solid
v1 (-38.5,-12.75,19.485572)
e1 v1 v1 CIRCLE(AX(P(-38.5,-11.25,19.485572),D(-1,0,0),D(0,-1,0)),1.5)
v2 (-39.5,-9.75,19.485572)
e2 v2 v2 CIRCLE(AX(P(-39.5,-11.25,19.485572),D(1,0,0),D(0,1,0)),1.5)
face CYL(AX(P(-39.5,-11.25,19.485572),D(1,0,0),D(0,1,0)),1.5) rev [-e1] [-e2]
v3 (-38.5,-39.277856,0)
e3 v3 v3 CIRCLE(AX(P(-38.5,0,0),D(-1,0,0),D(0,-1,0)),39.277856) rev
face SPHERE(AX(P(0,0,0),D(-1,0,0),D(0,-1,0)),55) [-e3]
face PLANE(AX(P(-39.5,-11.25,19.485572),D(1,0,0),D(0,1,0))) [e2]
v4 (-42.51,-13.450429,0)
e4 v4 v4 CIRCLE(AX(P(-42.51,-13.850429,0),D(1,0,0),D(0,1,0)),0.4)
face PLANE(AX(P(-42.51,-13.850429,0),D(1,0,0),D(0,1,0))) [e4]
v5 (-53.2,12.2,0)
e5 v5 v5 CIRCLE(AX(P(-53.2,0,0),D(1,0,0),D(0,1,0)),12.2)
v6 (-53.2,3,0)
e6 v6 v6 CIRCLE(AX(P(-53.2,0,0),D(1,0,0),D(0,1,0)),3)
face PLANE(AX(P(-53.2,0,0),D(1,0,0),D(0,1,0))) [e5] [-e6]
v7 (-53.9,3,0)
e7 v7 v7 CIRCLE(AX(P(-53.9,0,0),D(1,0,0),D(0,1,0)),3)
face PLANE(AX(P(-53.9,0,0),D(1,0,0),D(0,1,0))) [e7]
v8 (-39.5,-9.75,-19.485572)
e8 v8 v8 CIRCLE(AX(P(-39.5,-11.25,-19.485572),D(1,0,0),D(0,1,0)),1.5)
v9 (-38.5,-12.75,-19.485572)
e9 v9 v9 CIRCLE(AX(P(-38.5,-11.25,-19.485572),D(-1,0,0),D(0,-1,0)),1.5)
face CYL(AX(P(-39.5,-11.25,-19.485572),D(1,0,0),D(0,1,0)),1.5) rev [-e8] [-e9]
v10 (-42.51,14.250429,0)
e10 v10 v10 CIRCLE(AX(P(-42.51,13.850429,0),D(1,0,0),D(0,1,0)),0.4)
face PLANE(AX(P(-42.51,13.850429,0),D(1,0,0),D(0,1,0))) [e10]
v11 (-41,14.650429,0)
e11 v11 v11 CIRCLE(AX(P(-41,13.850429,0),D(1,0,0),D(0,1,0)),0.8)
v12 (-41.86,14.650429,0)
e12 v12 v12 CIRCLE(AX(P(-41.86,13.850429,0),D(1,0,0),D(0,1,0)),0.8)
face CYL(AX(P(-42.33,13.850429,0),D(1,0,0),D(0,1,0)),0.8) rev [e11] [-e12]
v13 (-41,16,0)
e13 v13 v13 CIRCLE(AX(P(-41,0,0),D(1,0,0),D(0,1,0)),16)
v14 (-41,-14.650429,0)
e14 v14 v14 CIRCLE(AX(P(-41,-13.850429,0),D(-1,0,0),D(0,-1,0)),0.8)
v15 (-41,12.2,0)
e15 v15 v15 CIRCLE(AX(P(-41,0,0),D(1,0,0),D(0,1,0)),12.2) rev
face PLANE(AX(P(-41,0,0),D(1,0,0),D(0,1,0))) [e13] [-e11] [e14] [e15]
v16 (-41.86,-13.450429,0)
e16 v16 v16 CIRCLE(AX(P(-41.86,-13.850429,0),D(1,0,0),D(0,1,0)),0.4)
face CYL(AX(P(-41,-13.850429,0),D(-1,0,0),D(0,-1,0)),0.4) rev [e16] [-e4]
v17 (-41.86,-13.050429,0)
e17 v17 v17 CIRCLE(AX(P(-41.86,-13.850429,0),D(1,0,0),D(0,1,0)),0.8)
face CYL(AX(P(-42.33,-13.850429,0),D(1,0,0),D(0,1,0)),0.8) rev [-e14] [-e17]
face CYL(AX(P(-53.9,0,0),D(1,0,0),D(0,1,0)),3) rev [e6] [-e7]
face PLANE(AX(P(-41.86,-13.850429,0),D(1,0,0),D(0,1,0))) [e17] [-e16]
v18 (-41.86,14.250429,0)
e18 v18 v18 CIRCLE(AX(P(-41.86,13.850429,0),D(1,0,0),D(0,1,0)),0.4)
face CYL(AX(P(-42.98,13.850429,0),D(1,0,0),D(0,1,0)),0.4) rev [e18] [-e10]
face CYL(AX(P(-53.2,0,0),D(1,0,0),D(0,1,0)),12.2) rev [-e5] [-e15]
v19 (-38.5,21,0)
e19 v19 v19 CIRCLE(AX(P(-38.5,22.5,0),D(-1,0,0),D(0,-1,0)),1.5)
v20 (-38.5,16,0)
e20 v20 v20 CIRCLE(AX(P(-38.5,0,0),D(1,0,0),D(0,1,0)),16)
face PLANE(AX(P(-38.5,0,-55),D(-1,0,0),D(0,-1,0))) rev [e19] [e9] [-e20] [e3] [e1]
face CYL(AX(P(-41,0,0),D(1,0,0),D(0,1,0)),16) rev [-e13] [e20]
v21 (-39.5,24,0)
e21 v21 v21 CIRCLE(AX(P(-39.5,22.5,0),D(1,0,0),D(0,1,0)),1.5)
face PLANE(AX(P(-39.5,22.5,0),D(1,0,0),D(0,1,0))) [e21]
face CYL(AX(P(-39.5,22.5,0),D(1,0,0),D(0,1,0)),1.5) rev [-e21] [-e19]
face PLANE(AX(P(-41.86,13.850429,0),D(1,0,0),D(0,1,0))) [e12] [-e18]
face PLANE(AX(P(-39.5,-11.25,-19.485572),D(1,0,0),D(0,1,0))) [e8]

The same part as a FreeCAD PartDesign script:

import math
import FreeCAD as App
import Part
import Sketcher

V = App.Vector

doc = App.newDocument("Part")
params = doc.addObject("Spreadsheet::Sheet", "Params")
for row, (alias, value) in enumerate([
    ("sketch1_radius", "55 mm"),
    ("revolution_angle", "360 deg"),
    ("sketch3_diameter", "24.4 mm"),
    ("pocket2_length", "14.7 mm"),
    ("sketch4_diameter", "6 mm"),
    ("pocket3_length", "0.7 mm"),
    ("sketch5_diameter", "3 mm"),
    ("pad1_length", "1 mm"),
    ("sketch6_diameter", "3 mm"),
    ("pocket4_length", "2 mm"),
    ("sketch7_diameter", "32 mm"),
    ("pocket5_length", "2.5 mm"),
    ("pocket6_length", "1.33 mm"),
    ("sketch9_diameter", "1.6 mm"),
    ("pocket7_length", "1.98 mm"),
    ("sketch10_diameter", "1.6 mm"),
    ("pad2_length", "1.98 mm"),
    ("pad3_length", "1.33 mm"),
    ("sketch12_diameter", "1.6 mm"),
    ("pad4_length", "1.98 mm"),
    ("pad5_length", "1.33 mm"),
    ("sketch14_diameter", "0.8 mm"),
    ("pocket8_length", "1.98 mm"),
    ("sketch15_diameter", "0.8 mm"),
    ("pocket9_length", "1.98 mm"),
    ("sketch16_diameter", "1.6 mm"),
    ("pocket10_length", "1.33 mm"),
    ("sketch17_diameter", "0.8 mm"),
    ("pad6_length", "0.47 mm"),
    ("sketch18_diameter", "1.6 mm"),
    ("sketch18_diameter2", "0.8 mm"),
    ("pad7_length", "0.47 mm"),
], start=1):
    params.set(f"A{row}", alias)
    params.set(f"B{row}", "=" + value)
    params.setAlias(f"B{row}", alias)

body = doc.addObject("PartDesign::Body", "Body")

# Sketch on XY plane
sketch1 = doc.addObject("Sketcher::SketchObject", "Sketch")
body.addObject(sketch1)
sketch1.AttachmentSupport = (doc.XY_Plane, [""])
sketch1.MapMode = "FlatFace"
sketch1.addGeometry([
    Part.LineSegment(V(0, -55, 0), V(0, 55, 0)),
    Part.ArcOfCircle(Part.Circle(V(0, 0, 0), V(0, 0, 1), 55), math.radians(90), math.radians(270)),
], False)
sketch1.addConstraint([
    Sketcher.Constraint("Coincident", 0, 1, 1, 2),
    Sketcher.Constraint("Coincident", 1, 1, 0, 2),
    Sketcher.Constraint("Vertical", 0),
    Sketcher.Constraint("Coincident", 1, 3, -1, 1),
    Sketcher.Constraint("PointOnObject", 0, 1, -2),
    Sketcher.Constraint("Radius", 1, 55.0),
])
sketch1.setExpression("Constraints[5]", "Params.sketch1_radius")
revolution = doc.addObject("PartDesign::Revolution", "Revolution")
body.addObject(revolution)
revolution.Profile = sketch1
revolution.ReferenceAxis = (sketch1, ["V_Axis"])
revolution.setExpression("Angle", "Params.revolution_angle")

# Sketch on XY plane
sketch2 = doc.addObject("Sketcher::SketchObject", "Sketch001")
body.addObject(sketch2)
sketch2.AttachmentSupport = (doc.XY_Plane, [""])
sketch2.MapMode = "FlatFace"
sketch2.addGeometry([
    Part.LineSegment(V(-38, 55, 0), V(-38, -64, 0)),
    Part.LineSegment(V(-38, -64, 0), V(58, -64, 0)),
    Part.LineSegment(V(58, -64, 0), V(58, 55, 0)),
    Part.LineSegment(V(58, 55, 0), V(-38, 55, 0)),
], False)
sketch2.addConstraint([
    Sketcher.Constraint("Coincident", 0, 2, 1, 1),
    Sketcher.Constraint("Coincident", 1, 2, 2, 1),
    Sketcher.Constraint("Coincident", 2, 2, 3, 1),
    Sketcher.Constraint("Coincident", 3, 2, 0, 1),
    Sketcher.Constraint("Vertical", 0),
    Sketcher.Constraint("Horizontal", 1),
    Sketcher.Constraint("Vertical", 2),
    Sketcher.Constraint("Horizontal", 3),
    Sketcher.Constraint("DistanceY", -1, 1, 2, 2, 55.0),
    Sketcher.Constraint("DistanceX", 0, 2, -1, 1, 38.5),
    Sketcher.Constraint("DistanceY", 0, 2, 0, 1, 118.890241),
    Sketcher.Constraint("DistanceX", 1, 1, 1, 2, 96.244438),
])
pocket1 = doc.addObject("PartDesign::Pocket", "Pocket")
body.addObject(pocket1)
pocket1.Profile = sketch2
pocket1.Type = "ThroughAll"
pocket1.Midplane = True

# Sketch on YZ plane
sketch3 = doc.addObject("Sketcher::SketchObject", "Sketch002")
body.addObject(sketch3)
sketch3.AttachmentSupport = (doc.YZ_Plane, [""])
sketch3.MapMode = "FlatFace"
sketch3.AttachmentOffset = App.Placement(V(0, 0, -38.5), App.Rotation())
sketch3.addGeometry(Part.Circle(V(0, 0, 0), V(0, 0, 1), 12), False)
sketch3.addConstraint([
    Sketcher.Constraint("Coincident", 0, 3, -1, 1),
    Sketcher.Constraint("Diameter", 0, 24.4),
])
sketch3.setExpression("Constraints[1]", "Params.sketch3_diameter")
pocket2 = doc.addObject("PartDesign::Pocket", "Pocket001")
body.addObject(pocket2)
pocket2.Profile = sketch3
pocket2.setExpression("Length", "Params.pocket2_length")

# Sketch on YZ plane
sketch4 = doc.addObject("Sketcher::SketchObject", "Sketch003")
body.addObject(sketch4)
sketch4.AttachmentSupport = (doc.YZ_Plane, [""])
sketch4.MapMode = "FlatFace"
sketch4.AttachmentOffset = App.Placement(V(0, 0, -53.2), App.Rotation())
sketch4.addGeometry(Part.Circle(V(0, 0, 0), V(0, 0, 1), 3), False)
sketch4.addConstraint([
    Sketcher.Constraint("Coincident", 0, 3, -1, 1),
    Sketcher.Constraint("Diameter", 0, 6.0),
])
sketch4.setExpression("Constraints[1]", "Params.sketch4_diameter")
pocket3 = doc.addObject("PartDesign::Pocket", "Pocket002")
body.addObject(pocket3)
pocket3.Profile = sketch4
pocket3.setExpression("Length", "Params.pocket3_length")

# Sketch on YZ plane
sketch5 = doc.addObject("Sketcher::SketchObject", "Sketch004")
body.addObject(sketch5)
sketch5.AttachmentSupport = (doc.YZ_Plane, [""])
sketch5.MapMode = "FlatFace"
sketch5.AttachmentOffset = App.Placement(V(0, 0, -38.5), App.Rotation())
sketch5.addGeometry([
    Part.Circle(V(22.5, 0, 0), V(0, 0, 1), 1.5),
    Part.Circle(V(-11.2, -19.5, 0), V(0, 0, 1), 1.5),
    Part.Circle(V(-11.2, 19.5, 0), V(0, 0, 1), 1.5),
], False)
sketch5.addConstraint([
    Sketcher.Constraint("Equal", 0, 1),
    Sketcher.Constraint("Equal", 1, 2),
    Sketcher.Constraint("Symmetric", 1, 3, 2, 3, -1),
    Sketcher.Constraint("PointOnObject", 0, 3, -1),
    Sketcher.Constraint("Diameter", 0, 3.0),
    Sketcher.Constraint("DistanceX", -1, 1, 0, 3, 22.5),
    Sketcher.Constraint("DistanceX", 1, 3, -1, 1, 11.25),
    Sketcher.Constraint("DistanceY", 1, 3, -1, 1, 19.485572),
])
sketch5.setExpression("Constraints[4]", "Params.sketch5_diameter")
pad1 = doc.addObject("PartDesign::Pad", "Pad")
body.addObject(pad1)
pad1.Profile = sketch5
pad1.setExpression("Length", "Params.pad1_length")

# Sketch on YZ plane
sketch6 = doc.addObject("Sketcher::SketchObject", "Sketch005")
body.addObject(sketch6)
sketch6.AttachmentSupport = (doc.YZ_Plane, [""])
sketch6.MapMode = "FlatFace"
sketch6.AttachmentOffset = App.Placement(V(0, 0, -39.5), App.Rotation())
sketch6.addGeometry([
    Part.Circle(V(22.5, 0, 0), V(0, 0, 1), 1.5),
    Part.Circle(V(-11.2, 19.5, 0), V(0, 0, 1), 1.5),
    Part.Circle(V(-11.2, -19.5, 0), V(0, 0, 1), 1.5),
], False)
sketch6.addConstraint([
    Sketcher.Constraint("Equal", 0, 1),
    Sketcher.Constraint("Equal", 1, 2),
    Sketcher.Constraint("Symmetric", 1, 3, 2, 3, -1),
    Sketcher.Constraint("PointOnObject", 0, 3, -1),
    Sketcher.Constraint("Diameter", 0, 3.0),
    Sketcher.Constraint("DistanceX", -1, 1, 0, 3, 22.5),
    Sketcher.Constraint("DistanceX", 1, 3, -1, 1, 11.25),
    Sketcher.Constraint("DistanceY", -1, 1, 1, 3, 19.485572),
])
sketch6.setExpression("Constraints[4]", "Params.sketch6_diameter")
pocket4 = doc.addObject("PartDesign::Pocket", "Pocket003")
body.addObject(pocket4)
pocket4.Profile = sketch6
pocket4.setExpression("Length", "Params.pocket4_length")
pocket4.Reversed = True

# Sketch on YZ plane
sketch7 = doc.addObject("Sketcher::SketchObject", "Sketch006")
body.addObject(sketch7)
sketch7.AttachmentSupport = (doc.YZ_Plane, [""])
sketch7.MapMode = "FlatFace"
sketch7.AttachmentOffset = App.Placement(V(0, 0, -38.5), App.Rotation())
sketch7.addGeometry(Part.Circle(V(0, 0, 0), V(0, 0, 1), 16), False)
sketch7.addConstraint([
    Sketcher.Constraint("Coincident", 0, 3, -1, 1),
    Sketcher.Constraint("Diameter", 0, 32.0),
])
sketch7.setExpression("Constraints[1]", "Params.sketch7_diameter")
pocket5 = doc.addObject("PartDesign::Pocket", "Pocket004")
body.addObject(pocket5)
pocket5.Profile = sketch7
pocket5.setExpression("Length", "Params.pocket5_length")

# Sketch on YZ plane
sketch8 = doc.addObject("Sketcher::SketchObject", "Sketch007")
body.addObject(sketch8)
sketch8.AttachmentSupport = (doc.YZ_Plane, [""])
sketch8.MapMode = "FlatFace"
sketch8.AttachmentOffset = App.Placement(V(0, 0, -41), App.Rotation())
sketch8.addGeometry([
    Part.Circle(V(14, 0, 0), V(0, 0, 1), 1.6),
    Part.Circle(V(-14, 0, 0), V(0, 0, 1), 1.6),
], False)
sketch8.addConstraint([
    Sketcher.Constraint("Equal", 0, 1),
    Sketcher.Constraint("Symmetric", 0, 3, 1, 3, -1, 1),
    Sketcher.Constraint("PointOnObject", 0, 3, -1),
    Sketcher.Constraint("Diameter", 0, 3.196469),
    Sketcher.Constraint("DistanceX", -1, 1, 0, 3, 14.008048),
])
pocket6 = doc.addObject("PartDesign::Pocket", "Pocket005")
body.addObject(pocket6)
pocket6.Profile = sketch8
pocket6.setExpression("Length", "Params.pocket6_length")

# Sketch on YZ plane
sketch9 = doc.addObject("Sketcher::SketchObject", "Sketch008")
body.addObject(sketch9)
sketch9.AttachmentSupport = (doc.YZ_Plane, [""])
sketch9.MapMode = "FlatFace"
sketch9.AttachmentOffset = App.Placement(V(0, 0, -41), App.Rotation())
sketch9.addGeometry([
    Part.Circle(V(14, 0, 0), V(0, 0, 1), 0.8),
    Part.Circle(V(-14, 0, 0), V(0, 0, 1), 0.8),
], False)
sketch9.addConstraint([
    Sketcher.Constraint("Equal", 0, 1),
    Sketcher.Constraint("Symmetric", 0, 3, 1, 3, -1, 1),
    Sketcher.Constraint("PointOnObject", 0, 3, -1),
    Sketcher.Constraint("Diameter", 0, 1.6),
    Sketcher.Constraint("DistanceX", -1, 1, 0, 3, 14.008048),
])
sketch9.setExpression("Constraints[3]", "Params.sketch9_diameter")
pocket7 = doc.addObject("PartDesign::Pocket", "Pocket006")
body.addObject(pocket7)
pocket7.Profile = sketch9
pocket7.setExpression("Length", "Params.pocket7_length")

# Sketch on YZ plane
sketch10 = doc.addObject("Sketcher::SketchObject", "Sketch009")
body.addObject(sketch10)
sketch10.AttachmentSupport = (doc.YZ_Plane, [""])
sketch10.MapMode = "FlatFace"
sketch10.AttachmentOffset = App.Placement(V(0, 0, -41), App.Rotation())
sketch10.addGeometry(Part.Circle(V(14, 0, 0), V(0, 0, 1), 0.8), False)
sketch10.addConstraint([
    Sketcher.Constraint("PointOnObject", 0, 3, -1),
    Sketcher.Constraint("Diameter", 0, 1.6),
    Sketcher.Constraint("DistanceX", -1, 1, 0, 3, 14.008048),
])
sketch10.setExpression("Constraints[1]", "Params.sketch10_diameter")
pad2 = doc.addObject("PartDesign::Pad", "Pad001")
body.addObject(pad2)
pad2.Profile = sketch10
pad2.setExpression("Length", "Params.pad2_length")
pad2.Reversed = True

# Sketch on YZ plane
sketch11 = doc.addObject("Sketcher::SketchObject", "Sketch010")
body.addObject(sketch11)
sketch11.AttachmentSupport = (doc.YZ_Plane, [""])
sketch11.MapMode = "FlatFace"
sketch11.AttachmentOffset = App.Placement(V(0, 0, -41), App.Rotation())
sketch11.addGeometry(Part.Circle(V(14, 0, 0), V(0, 0, 1), 1.6), False)
sketch11.addConstraint([
    Sketcher.Constraint("PointOnObject", 0, 3, -1),
    Sketcher.Constraint("Diameter", 0, 3.196469),
    Sketcher.Constraint("DistanceX", -1, 1, 0, 3, 14.008048),
])
pad3 = doc.addObject("PartDesign::Pad", "Pad002")
body.addObject(pad3)
pad3.Profile = sketch11
pad3.setExpression("Length", "Params.pad3_length")
pad3.Reversed = True

# Sketch on YZ plane
sketch12 = doc.addObject("Sketcher::SketchObject", "Sketch011")
body.addObject(sketch12)
sketch12.AttachmentSupport = (doc.YZ_Plane, [""])
sketch12.MapMode = "FlatFace"
sketch12.AttachmentOffset = App.Placement(V(0, 0, -41), App.Rotation())
sketch12.addGeometry(Part.Circle(V(-14, 0, 0), V(0, 0, 1), 0.8), False)
sketch12.addConstraint([
    Sketcher.Constraint("PointOnObject", 0, 3, -1),
    Sketcher.Constraint("Diameter", 0, 1.6),
    Sketcher.Constraint("DistanceX", 0, 3, -1, 1, 14.008048),
])
sketch12.setExpression("Constraints[1]", "Params.sketch12_diameter")
pad4 = doc.addObject("PartDesign::Pad", "Pad003")
body.addObject(pad4)
pad4.Profile = sketch12
pad4.setExpression("Length", "Params.pad4_length")
pad4.Reversed = True

# Sketch on YZ plane
sketch13 = doc.addObject("Sketcher::SketchObject", "Sketch012")
body.addObject(sketch13)
sketch13.AttachmentSupport = (doc.YZ_Plane, [""])
sketch13.MapMode = "FlatFace"
sketch13.AttachmentOffset = App.Placement(V(0, 0, -41), App.Rotation())
sketch13.addGeometry(Part.Circle(V(-14, 0, 0), V(0, 0, 1), 1.6), False)
sketch13.addConstraint([
    Sketcher.Constraint("PointOnObject", 0, 3, -1),
    Sketcher.Constraint("Diameter", 0, 3.196469),
    Sketcher.Constraint("DistanceX", 0, 3, -1, 1, 14.008048),
])
pad5 = doc.addObject("PartDesign::Pad", "Pad004")
body.addObject(pad5)
pad5.Profile = sketch13
pad5.setExpression("Length", "Params.pad5_length")
pad5.Reversed = True

# Sketch on YZ plane
sketch14 = doc.addObject("Sketcher::SketchObject", "Sketch013")
body.addObject(sketch14)
sketch14.AttachmentSupport = (doc.YZ_Plane, [""])
sketch14.MapMode = "FlatFace"
sketch14.AttachmentOffset = App.Placement(V(0, 0, -41), App.Rotation())
sketch14.addGeometry(Part.Circle(V(13.85, 0, 0), V(0, 0, 1), 0.4), False)
sketch14.addConstraint([
    Sketcher.Constraint("PointOnObject", 0, 3, -1),
    Sketcher.Constraint("Diameter", 0, 0.8),
    Sketcher.Constraint("DistanceX", -1, 1, 0, 3, 13.850429),
])
sketch14.setExpression("Constraints[1]", "Params.sketch14_diameter")
pocket8 = doc.addObject("PartDesign::Pocket", "Pocket007")
body.addObject(pocket8)
pocket8.Profile = sketch14
pocket8.setExpression("Length", "Params.pocket8_length")

# Sketch on YZ plane
sketch15 = doc.addObject("Sketcher::SketchObject", "Sketch014")
body.addObject(sketch15)
sketch15.AttachmentSupport = (doc.YZ_Plane, [""])
sketch15.MapMode = "FlatFace"
sketch15.AttachmentOffset = App.Placement(V(0, 0, -41), App.Rotation())
sketch15.addGeometry([
    Part.Circle(V(13.85, 0, 0), V(0, 0, 1), 0.4),
    Part.Circle(V(-13.85, 0, 0), V(0, 0, 1), 0.4),
], False)
sketch15.addConstraint([
    Sketcher.Constraint("Equal", 0, 1),
    Sketcher.Constraint("Symmetric", 0, 3, 1, 3, -1, 1),
    Sketcher.Constraint("PointOnObject", 0, 3, -1),
    Sketcher.Constraint("Diameter", 0, 0.8),
    Sketcher.Constraint("DistanceX", -1, 1, 0, 3, 13.850429),
])
sketch15.setExpression("Constraints[3]", "Params.sketch15_diameter")
pocket9 = doc.addObject("PartDesign::Pocket", "Pocket008")
body.addObject(pocket9)
pocket9.Profile = sketch15
pocket9.setExpression("Length", "Params.pocket9_length")

# Sketch on YZ plane
sketch16 = doc.addObject("Sketcher::SketchObject", "Sketch015")
body.addObject(sketch16)
sketch16.AttachmentSupport = (doc.YZ_Plane, [""])
sketch16.MapMode = "FlatFace"
sketch16.AttachmentOffset = App.Placement(V(0, 0, -41), App.Rotation())
sketch16.addGeometry([
    Part.Circle(V(13.9, 0, 0), V(0, 0, 1), 0.8),
    Part.Circle(V(-13.9, 0, 0), V(0, 0, 1), 0.8),
], False)
sketch16.addConstraint([
    Sketcher.Constraint("Equal", 0, 1),
    Sketcher.Constraint("Symmetric", 0, 3, 1, 3, -1, 1),
    Sketcher.Constraint("PointOnObject", 0, 3, -1),
    Sketcher.Constraint("Diameter", 0, 1.6),
    Sketcher.Constraint("DistanceX", -1, 1, 0, 3, 13.850429),
])
sketch16.setExpression("Constraints[3]", "Params.sketch16_diameter")
pocket10 = doc.addObject("PartDesign::Pocket", "Pocket009")
body.addObject(pocket10)
pocket10.Profile = sketch16
pocket10.setExpression("Length", "Params.pocket10_length")

# Sketch on YZ plane
sketch17 = doc.addObject("Sketcher::SketchObject", "Sketch016")
body.addObject(sketch17)
sketch17.AttachmentSupport = (doc.YZ_Plane, [""])
sketch17.MapMode = "FlatFace"
sketch17.AttachmentOffset = App.Placement(V(0, 0, -42.51), App.Rotation())
sketch17.addGeometry([
    Part.Circle(V(13.85, 0, 0), V(0, 0, 1), 0.4),
    Part.Circle(V(-13.85, 0, 0), V(0, 0, 1), 0.4),
], False)
sketch17.addConstraint([
    Sketcher.Constraint("Equal", 0, 1),
    Sketcher.Constraint("Symmetric", 0, 3, 1, 3, -1, 1),
    Sketcher.Constraint("PointOnObject", 0, 3, -1),
    Sketcher.Constraint("Diameter", 0, 0.8),
    Sketcher.Constraint("DistanceX", -1, 1, 0, 3, 13.850429),
])
sketch17.setExpression("Constraints[3]", "Params.sketch17_diameter")
pad6 = doc.addObject("PartDesign::Pad", "Pad005")
body.addObject(pad6)
pad6.Profile = sketch17
pad6.setExpression("Length", "Params.pad6_length")
pad6.Reversed = True

# Sketch on YZ plane
sketch18 = doc.addObject("Sketcher::SketchObject", "Sketch017")
body.addObject(sketch18)
sketch18.AttachmentSupport = (doc.YZ_Plane, [""])
sketch18.MapMode = "FlatFace"
sketch18.AttachmentOffset = App.Placement(V(0, 0, -41.86), App.Rotation())
sketch18.addGeometry([
    Part.Circle(V(13.85, 0, 0), V(0, 0, 1), 0.8),
    Part.Circle(V(13.85, 0, 0), V(0, 0, 1), 0.4),
    Part.Circle(V(-13.85, 0, 0), V(0, 0, 1), 0.8),
    Part.Circle(V(-13.85, 0, 0), V(0, 0, 1), 0.4),
], False)
sketch18.addConstraint([
    Sketcher.Constraint("Coincident", 1, 3, 0, 3),
    Sketcher.Constraint("Coincident", 3, 3, 2, 3),
    Sketcher.Constraint("Equal", 0, 2),
    Sketcher.Constraint("Equal", 1, 3),
    Sketcher.Constraint("Symmetric", 0, 3, 2, 3, -1, 1),
    Sketcher.Constraint("PointOnObject", 0, 3, -1),
    Sketcher.Constraint("Diameter", 0, 1.6),
    Sketcher.Constraint("Diameter", 1, 0.8),
    Sketcher.Constraint("DistanceX", -1, 1, 0, 3, 13.850429),
])
sketch18.setExpression("Constraints[6]", "Params.sketch18_diameter")
sketch18.setExpression("Constraints[7]", "Params.sketch18_diameter2")
pad7 = doc.addObject("PartDesign::Pad", "Pad006")
body.addObject(pad7)
pad7.Profile = sketch18
pad7.setExpression("Length", "Params.pad7_length")
pad7.Reversed = True

doc.recompute()
